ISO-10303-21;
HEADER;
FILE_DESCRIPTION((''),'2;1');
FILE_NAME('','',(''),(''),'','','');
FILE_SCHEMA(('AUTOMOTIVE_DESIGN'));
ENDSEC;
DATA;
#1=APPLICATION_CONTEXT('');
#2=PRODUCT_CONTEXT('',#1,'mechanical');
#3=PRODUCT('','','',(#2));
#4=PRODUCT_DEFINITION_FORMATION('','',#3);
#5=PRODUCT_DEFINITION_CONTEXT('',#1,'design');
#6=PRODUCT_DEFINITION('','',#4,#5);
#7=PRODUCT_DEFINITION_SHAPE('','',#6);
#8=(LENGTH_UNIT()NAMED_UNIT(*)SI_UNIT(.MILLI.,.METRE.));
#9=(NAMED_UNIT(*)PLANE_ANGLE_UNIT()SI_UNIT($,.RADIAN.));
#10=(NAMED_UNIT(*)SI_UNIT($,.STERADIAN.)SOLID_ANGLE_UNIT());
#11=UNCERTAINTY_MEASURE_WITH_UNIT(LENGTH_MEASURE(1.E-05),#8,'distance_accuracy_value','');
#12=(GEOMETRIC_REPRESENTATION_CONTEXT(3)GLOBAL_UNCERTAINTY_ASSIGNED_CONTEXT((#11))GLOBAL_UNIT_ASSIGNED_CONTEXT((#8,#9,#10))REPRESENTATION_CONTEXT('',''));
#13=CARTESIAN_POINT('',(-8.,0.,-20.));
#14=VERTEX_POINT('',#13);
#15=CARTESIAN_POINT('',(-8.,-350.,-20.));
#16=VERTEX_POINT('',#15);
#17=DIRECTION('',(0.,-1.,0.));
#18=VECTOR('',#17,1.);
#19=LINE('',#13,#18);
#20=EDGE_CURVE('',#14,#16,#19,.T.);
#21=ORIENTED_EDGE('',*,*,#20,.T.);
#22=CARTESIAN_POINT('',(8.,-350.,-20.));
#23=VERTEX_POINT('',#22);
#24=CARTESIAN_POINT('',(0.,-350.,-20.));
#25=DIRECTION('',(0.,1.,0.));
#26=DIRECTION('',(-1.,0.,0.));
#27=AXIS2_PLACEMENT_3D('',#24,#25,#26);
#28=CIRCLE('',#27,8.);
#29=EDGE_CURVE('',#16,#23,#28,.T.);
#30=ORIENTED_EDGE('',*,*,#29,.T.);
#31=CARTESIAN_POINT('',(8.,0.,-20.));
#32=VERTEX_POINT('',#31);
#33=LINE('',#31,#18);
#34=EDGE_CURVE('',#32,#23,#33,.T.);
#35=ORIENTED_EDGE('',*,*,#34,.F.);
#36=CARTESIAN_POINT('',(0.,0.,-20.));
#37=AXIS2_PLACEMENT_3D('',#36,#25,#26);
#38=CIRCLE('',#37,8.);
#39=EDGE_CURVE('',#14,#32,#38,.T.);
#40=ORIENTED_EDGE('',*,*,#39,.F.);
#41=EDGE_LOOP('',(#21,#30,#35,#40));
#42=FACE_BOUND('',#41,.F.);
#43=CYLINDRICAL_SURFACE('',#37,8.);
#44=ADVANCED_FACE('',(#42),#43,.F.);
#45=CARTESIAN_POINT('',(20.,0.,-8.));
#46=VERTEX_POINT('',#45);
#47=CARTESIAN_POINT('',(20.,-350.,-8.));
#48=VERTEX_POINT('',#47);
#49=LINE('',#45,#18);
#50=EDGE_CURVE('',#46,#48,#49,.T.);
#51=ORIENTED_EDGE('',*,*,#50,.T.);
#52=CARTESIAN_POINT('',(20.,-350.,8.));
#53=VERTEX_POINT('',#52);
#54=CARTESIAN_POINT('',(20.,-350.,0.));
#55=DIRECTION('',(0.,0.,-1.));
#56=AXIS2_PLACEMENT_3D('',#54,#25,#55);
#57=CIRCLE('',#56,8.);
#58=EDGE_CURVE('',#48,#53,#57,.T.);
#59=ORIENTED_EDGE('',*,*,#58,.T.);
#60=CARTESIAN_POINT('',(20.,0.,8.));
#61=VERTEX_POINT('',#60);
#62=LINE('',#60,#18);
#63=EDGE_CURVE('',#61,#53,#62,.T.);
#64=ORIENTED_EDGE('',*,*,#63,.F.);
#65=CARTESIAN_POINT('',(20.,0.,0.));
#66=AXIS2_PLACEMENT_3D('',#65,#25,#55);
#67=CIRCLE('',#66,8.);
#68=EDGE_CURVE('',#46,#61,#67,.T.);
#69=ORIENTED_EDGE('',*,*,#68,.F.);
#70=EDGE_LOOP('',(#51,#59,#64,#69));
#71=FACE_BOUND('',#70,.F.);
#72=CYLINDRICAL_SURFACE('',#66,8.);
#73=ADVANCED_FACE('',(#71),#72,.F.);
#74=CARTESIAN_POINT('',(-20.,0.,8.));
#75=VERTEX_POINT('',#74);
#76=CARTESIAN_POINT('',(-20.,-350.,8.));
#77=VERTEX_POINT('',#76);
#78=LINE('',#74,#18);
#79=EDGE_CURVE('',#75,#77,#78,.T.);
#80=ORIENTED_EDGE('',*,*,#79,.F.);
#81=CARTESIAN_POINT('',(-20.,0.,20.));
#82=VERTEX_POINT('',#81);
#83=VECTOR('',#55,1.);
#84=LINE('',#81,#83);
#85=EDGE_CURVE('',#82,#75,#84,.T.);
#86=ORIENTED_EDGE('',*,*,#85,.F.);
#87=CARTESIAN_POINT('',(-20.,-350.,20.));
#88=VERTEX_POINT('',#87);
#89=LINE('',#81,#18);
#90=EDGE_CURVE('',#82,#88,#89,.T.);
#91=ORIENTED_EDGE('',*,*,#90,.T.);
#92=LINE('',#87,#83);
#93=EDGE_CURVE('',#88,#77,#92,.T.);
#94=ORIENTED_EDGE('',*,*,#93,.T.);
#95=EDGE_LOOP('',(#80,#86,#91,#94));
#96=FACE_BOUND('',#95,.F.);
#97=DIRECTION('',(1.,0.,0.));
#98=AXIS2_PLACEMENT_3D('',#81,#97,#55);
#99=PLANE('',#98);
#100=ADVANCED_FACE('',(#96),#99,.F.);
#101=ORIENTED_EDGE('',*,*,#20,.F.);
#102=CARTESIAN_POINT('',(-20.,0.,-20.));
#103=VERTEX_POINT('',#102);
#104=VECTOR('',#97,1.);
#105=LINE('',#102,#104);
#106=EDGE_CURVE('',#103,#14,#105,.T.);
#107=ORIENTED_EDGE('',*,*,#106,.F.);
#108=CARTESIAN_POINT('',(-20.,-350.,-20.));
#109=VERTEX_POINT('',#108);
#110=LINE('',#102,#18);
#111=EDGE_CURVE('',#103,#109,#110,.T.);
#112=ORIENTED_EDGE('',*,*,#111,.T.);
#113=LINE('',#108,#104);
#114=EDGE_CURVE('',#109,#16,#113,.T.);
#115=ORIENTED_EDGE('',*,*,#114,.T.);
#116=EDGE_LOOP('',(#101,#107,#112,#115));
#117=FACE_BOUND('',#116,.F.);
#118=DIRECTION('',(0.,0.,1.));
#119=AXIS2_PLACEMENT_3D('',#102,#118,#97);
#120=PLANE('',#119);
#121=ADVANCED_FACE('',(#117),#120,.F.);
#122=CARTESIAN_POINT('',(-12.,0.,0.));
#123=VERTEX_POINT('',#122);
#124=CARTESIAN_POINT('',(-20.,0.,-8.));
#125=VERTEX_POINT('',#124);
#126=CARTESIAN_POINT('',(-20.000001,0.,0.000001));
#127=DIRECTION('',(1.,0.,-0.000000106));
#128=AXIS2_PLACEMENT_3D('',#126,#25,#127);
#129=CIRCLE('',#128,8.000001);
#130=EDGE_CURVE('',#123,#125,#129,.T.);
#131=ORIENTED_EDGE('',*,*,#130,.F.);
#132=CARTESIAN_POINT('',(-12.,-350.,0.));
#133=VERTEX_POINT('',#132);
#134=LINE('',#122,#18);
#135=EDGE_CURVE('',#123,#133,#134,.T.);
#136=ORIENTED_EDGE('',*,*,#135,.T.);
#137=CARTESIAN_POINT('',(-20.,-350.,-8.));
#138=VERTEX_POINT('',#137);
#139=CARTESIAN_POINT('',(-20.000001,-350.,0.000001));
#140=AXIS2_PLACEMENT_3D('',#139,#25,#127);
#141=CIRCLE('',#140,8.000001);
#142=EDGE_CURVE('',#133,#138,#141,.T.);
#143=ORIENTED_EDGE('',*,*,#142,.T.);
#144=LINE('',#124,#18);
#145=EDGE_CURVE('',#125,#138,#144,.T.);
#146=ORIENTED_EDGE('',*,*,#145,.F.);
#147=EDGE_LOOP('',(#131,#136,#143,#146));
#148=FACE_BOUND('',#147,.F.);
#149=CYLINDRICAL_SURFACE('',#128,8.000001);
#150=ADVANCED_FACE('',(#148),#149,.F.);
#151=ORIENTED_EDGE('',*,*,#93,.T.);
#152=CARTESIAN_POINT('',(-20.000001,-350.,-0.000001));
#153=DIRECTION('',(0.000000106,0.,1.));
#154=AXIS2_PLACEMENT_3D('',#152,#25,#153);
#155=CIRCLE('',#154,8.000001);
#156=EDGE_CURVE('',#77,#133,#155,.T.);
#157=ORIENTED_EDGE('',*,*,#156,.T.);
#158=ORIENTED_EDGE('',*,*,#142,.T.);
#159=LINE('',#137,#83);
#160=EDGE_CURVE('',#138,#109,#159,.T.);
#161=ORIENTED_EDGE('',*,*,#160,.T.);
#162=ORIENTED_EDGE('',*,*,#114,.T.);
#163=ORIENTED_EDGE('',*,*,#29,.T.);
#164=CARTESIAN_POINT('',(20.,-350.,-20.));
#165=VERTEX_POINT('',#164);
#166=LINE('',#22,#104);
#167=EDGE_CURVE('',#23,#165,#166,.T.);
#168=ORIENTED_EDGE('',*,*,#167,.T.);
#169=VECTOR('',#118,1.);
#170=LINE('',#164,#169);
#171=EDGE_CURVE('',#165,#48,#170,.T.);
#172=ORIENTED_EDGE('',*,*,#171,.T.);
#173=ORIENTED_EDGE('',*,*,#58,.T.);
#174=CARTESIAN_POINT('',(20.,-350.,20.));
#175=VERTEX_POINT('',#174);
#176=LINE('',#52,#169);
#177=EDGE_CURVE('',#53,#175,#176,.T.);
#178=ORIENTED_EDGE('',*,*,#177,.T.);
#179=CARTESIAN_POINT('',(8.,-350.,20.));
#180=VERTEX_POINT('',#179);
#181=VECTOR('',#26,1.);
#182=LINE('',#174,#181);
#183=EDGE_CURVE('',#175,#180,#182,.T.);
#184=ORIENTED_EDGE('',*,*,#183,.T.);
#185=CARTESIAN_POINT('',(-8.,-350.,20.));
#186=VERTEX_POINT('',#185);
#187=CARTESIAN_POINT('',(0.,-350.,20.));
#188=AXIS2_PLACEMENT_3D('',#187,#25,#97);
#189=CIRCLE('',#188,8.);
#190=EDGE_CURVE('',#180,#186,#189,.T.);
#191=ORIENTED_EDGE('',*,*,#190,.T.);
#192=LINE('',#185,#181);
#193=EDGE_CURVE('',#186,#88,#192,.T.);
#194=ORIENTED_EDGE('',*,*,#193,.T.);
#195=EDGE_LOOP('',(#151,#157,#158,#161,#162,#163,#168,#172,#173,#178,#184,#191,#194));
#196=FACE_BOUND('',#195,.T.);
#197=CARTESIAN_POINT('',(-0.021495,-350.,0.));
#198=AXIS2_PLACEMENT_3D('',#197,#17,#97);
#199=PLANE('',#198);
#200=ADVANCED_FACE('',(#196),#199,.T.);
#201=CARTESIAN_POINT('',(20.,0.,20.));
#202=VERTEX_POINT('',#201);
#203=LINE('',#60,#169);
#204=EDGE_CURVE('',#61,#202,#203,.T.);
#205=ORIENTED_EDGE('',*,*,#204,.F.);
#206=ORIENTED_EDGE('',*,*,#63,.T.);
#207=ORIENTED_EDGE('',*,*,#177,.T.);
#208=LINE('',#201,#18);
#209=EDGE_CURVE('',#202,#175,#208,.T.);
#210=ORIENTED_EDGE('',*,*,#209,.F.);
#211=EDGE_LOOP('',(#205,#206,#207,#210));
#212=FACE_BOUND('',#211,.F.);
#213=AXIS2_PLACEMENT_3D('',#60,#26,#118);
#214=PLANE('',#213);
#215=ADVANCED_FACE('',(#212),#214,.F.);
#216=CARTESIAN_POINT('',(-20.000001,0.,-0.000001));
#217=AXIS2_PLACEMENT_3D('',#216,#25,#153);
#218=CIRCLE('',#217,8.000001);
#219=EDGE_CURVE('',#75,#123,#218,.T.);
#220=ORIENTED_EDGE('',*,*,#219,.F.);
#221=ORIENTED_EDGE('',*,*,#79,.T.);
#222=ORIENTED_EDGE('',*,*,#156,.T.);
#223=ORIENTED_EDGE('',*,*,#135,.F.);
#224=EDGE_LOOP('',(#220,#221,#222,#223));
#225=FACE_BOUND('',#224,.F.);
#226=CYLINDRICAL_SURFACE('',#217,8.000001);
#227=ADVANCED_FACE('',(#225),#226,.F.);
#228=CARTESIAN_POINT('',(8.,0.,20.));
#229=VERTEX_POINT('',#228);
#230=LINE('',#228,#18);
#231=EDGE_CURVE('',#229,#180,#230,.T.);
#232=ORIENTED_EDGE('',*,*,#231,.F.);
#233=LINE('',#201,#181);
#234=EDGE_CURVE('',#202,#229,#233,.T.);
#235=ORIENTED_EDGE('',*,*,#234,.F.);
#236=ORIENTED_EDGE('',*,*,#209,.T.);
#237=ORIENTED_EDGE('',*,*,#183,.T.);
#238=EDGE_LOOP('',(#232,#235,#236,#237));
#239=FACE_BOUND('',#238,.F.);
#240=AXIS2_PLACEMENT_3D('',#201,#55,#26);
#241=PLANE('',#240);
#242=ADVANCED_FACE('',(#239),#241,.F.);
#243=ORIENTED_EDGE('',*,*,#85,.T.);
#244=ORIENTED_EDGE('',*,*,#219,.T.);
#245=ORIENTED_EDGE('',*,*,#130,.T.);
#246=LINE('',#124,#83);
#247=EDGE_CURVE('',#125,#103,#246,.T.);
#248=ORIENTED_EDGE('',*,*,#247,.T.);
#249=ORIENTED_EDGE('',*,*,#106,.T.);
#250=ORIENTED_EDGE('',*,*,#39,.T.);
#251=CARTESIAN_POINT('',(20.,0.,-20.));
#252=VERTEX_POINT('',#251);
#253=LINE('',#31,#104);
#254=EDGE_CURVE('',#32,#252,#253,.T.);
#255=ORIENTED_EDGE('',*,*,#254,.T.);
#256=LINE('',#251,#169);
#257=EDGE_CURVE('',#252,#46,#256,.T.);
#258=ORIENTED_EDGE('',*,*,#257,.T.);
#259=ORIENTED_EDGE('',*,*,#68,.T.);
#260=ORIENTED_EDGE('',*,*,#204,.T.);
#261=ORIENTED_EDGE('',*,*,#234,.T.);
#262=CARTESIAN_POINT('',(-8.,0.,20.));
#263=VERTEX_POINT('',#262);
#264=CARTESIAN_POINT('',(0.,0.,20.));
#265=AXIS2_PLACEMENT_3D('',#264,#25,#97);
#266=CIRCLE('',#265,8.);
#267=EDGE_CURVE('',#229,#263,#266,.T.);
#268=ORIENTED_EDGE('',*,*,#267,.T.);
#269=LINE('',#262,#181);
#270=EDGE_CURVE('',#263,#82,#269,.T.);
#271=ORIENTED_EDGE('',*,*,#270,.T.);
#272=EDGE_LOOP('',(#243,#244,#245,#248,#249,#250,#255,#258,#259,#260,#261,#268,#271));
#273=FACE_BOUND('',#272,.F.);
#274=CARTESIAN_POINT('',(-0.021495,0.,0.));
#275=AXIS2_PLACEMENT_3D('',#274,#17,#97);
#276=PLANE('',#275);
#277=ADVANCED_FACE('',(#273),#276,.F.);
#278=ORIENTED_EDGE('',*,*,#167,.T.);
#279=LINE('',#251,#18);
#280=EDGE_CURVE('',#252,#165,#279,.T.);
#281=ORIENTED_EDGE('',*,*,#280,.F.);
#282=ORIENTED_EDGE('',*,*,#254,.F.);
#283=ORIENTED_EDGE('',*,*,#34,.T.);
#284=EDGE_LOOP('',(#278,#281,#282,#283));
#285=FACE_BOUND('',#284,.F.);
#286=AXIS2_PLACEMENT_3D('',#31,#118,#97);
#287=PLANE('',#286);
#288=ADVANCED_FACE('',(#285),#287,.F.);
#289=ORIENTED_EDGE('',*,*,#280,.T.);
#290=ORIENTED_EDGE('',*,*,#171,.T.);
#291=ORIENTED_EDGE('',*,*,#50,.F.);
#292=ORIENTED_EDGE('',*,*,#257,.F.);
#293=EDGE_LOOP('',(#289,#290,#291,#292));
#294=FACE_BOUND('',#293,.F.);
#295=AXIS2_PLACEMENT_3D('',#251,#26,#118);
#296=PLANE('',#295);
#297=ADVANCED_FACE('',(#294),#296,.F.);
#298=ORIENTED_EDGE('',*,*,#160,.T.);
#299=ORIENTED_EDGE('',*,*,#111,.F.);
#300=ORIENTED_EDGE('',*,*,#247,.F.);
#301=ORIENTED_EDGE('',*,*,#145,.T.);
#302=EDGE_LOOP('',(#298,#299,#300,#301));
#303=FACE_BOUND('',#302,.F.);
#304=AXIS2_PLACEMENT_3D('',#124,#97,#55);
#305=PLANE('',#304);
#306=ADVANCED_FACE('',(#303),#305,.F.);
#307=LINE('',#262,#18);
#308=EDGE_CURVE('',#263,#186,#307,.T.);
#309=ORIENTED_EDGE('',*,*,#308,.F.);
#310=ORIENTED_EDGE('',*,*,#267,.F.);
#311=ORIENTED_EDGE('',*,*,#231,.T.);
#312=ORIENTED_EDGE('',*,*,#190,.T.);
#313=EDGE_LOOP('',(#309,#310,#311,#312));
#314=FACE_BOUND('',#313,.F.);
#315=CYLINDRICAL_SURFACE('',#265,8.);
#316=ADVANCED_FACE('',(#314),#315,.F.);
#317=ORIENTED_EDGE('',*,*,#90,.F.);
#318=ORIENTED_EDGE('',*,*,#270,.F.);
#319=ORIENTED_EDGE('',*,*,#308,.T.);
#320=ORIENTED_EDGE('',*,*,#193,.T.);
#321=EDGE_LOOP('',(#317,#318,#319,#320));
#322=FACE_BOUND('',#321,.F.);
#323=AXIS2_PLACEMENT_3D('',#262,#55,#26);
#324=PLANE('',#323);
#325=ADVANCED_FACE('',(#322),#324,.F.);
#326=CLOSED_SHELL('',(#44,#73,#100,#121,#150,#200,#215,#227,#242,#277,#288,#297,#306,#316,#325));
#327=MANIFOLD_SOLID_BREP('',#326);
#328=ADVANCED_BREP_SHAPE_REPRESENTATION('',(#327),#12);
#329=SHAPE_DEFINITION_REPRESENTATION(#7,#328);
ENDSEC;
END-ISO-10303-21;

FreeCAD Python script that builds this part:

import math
import FreeCAD as App
import Part
import Sketcher
from FreeCAD import Vector

doc = App.newDocument("Part")
params = doc.addObject("Spreadsheet::Sheet", "Params")
for row, (alias, value) in enumerate([
    ("sketch1_radius", "8 mm"),
    ("sketch1_width", "12 mm"),
    ("pad1_length", "350 mm"),
], start=1):
    params.set(f"A{row}", alias)
    params.set(f"B{row}", "=" + value)
    params.setAlias(f"B{row}", alias)

body = doc.addObject("PartDesign::Body", "Body")

# Sketch on XZ plane
sketch1 = doc.addObject("Sketcher::SketchObject", "Sketch")
body.addObject(sketch1)
sketch1.AttachmentSupport = (doc.XZ_Plane, [""])
sketch1.MapMode = "FlatFace"
sketch1.addGeometry(Part.LineSegment(Vector(8, -20, 0), Vector(20, -20, 0)), False)
sketch1.addGeometry(Part.LineSegment(Vector(20, -20, 0), Vector(20, -8, 0)), False)
sketch1.addGeometry(Part.ArcOfCircle(Part.Circle(Vector(20, 0, 0), Vector(0, 0, 1), 8), math.radians(90), math.radians(270)), False)
sketch1.addGeometry(Part.LineSegment(Vector(20, 8, 0), Vector(20, 20, 0)), False)
sketch1.addGeometry(Part.LineSegment(Vector(20, 20, 0), Vector(8, 20, 0)), False)
sketch1.addGeometry(Part.ArcOfCircle(Part.Circle(Vector(0, 20, 0), Vector(0, 0, 1), 8), math.radians(180), math.radians(360)), False)
sketch1.addGeometry(Part.LineSegment(Vector(-8, 20, 0), Vector(-20, 20, 0)), False)
sketch1.addGeometry(Part.LineSegment(Vector(-20, 20, 0), Vector(-20, 8, 0)), False)
sketch1.addGeometry(Part.ArcOfCircle(Part.Circle(Vector(-20, 0, 0), Vector(0, 0, 1), 8), math.radians(0), math.radians(90)), False)
sketch1.addGeometry(Part.ArcOfCircle(Part.Circle(Vector(-20, 0, 0), Vector(0, 0, 1), 8), math.radians(-90), math.radians(0)), False)
sketch1.addGeometry(Part.LineSegment(Vector(-20, -8, 0), Vector(-20, -20, 0)), False)
sketch1.addGeometry(Part.LineSegment(Vector(-20, -20, 0), Vector(-8, -20, 0)), False)
sketch1.addGeometry(Part.ArcOfCircle(Part.Circle(Vector(0, -20, 0), Vector(0, 0, 1), 8), math.radians(0), math.radians(180)), False)
sketch1.addConstraint(Sketcher.Constraint("Coincident", 0, 2, 1, 1))
sketch1.addConstraint(Sketcher.Constraint("Coincident", 1, 2, 2, 2))
sketch1.addConstraint(Sketcher.Constraint("Coincident", 2, 1, 3, 1))
sketch1.addConstraint(Sketcher.Constraint("Coincident", 3, 2, 4, 1))
sketch1.addConstraint(Sketcher.Constraint("Coincident", 4, 2, 5, 2))
sketch1.addConstraint(Sketcher.Constraint("Coincident", 5, 1, 6, 1))
sketch1.addConstraint(Sketcher.Constraint("Coincident", 6, 2, 7, 1))
sketch1.addConstraint(Sketcher.Constraint("Coincident", 7, 2, 8, 2))
sketch1.addConstraint(Sketcher.Constraint("Tangent", 8, 1, 9, 2))
sketch1.addConstraint(Sketcher.Constraint("Coincident", 9, 1, 10, 1))
sketch1.addConstraint(Sketcher.Constraint("Coincident", 10, 2, 11, 1))
sketch1.addConstraint(Sketcher.Constraint("Coincident", 11, 2, 12, 2))
sketch1.addConstraint(Sketcher.Constraint("Coincident", 12, 1, 0, 1))
sketch1.addConstraint(Sketcher.Constraint("Horizontal", 0))
sketch1.addConstraint(Sketcher.Constraint("Vertical", 1))
sketch1.addConstraint(Sketcher.Constraint("Vertical", 3))
sketch1.addConstraint(Sketcher.Constraint("Horizontal", 4))
sketch1.addConstraint(Sketcher.Constraint("Horizontal", 6))
sketch1.addConstraint(Sketcher.Constraint("Vertical", 7))
sketch1.addConstraint(Sketcher.Constraint("Vertical", 10))
sketch1.addConstraint(Sketcher.Constraint("Horizontal", 11))
sketch1.addConstraint(Sketcher.Constraint("Equal", 2, 5))
sketch1.addConstraint(Sketcher.Constraint("Equal", 5, 8))
sketch1.addConstraint(Sketcher.Constraint("Equal", 8, 9))
sketch1.addConstraint(Sketcher.Constraint("Equal", 9, 12))
sketch1.addConstraint(Sketcher.Constraint("Symmetric", 2, 3, 8, 3, -1, 1))
sketch1.addConstraint(Sketcher.Constraint("Symmetric", 5, 3, 12, 3, -1, 1))
sketch1.addConstraint(Sketcher.Constraint("Symmetric", 0, 2, 6, 2, -1, 1))
sketch1.addConstraint(Sketcher.Constraint("Symmetric", 3, 2, 10, 2, -1, 1))
sketch1.addConstraint(Sketcher.Constraint("Symmetric", 4, 2, 5, 1, -2))
sketch1.addConstraint(Sketcher.Constraint("Symmetric", 2, 1, 7, 2, -2))
sketch1.addConstraint(Sketcher.Constraint("PointOnObject", 8, 1, -1))
sketch1.addConstraint(Sketcher.Constraint("Horizontal", 12, 3, 0, 2))
sketch1.addConstraint(Sketcher.Constraint("Vertical", 2, 3, 0, 2))
sketch1.addConstraint(Sketcher.Constraint("Equal", 11, 1))
sketch1.addConstraint(Sketcher.Constraint("Radius", 2, 8.0))
sketch1.addConstraint(Sketcher.Constraint("DistanceX", 0, 1, 0, 2, 12.0))
sketch1.setExpression("Constraints[35]", "Params.sketch1_radius")
sketch1.setExpression("Constraints[36]", "Params.sketch1_width")
pad1 = doc.addObject("PartDesign::Pad", "Pad")
body.addObject(pad1)
pad1.Profile = sketch1
pad1.setExpression("Length", "Params.pad1_length")

doc.recompute()
